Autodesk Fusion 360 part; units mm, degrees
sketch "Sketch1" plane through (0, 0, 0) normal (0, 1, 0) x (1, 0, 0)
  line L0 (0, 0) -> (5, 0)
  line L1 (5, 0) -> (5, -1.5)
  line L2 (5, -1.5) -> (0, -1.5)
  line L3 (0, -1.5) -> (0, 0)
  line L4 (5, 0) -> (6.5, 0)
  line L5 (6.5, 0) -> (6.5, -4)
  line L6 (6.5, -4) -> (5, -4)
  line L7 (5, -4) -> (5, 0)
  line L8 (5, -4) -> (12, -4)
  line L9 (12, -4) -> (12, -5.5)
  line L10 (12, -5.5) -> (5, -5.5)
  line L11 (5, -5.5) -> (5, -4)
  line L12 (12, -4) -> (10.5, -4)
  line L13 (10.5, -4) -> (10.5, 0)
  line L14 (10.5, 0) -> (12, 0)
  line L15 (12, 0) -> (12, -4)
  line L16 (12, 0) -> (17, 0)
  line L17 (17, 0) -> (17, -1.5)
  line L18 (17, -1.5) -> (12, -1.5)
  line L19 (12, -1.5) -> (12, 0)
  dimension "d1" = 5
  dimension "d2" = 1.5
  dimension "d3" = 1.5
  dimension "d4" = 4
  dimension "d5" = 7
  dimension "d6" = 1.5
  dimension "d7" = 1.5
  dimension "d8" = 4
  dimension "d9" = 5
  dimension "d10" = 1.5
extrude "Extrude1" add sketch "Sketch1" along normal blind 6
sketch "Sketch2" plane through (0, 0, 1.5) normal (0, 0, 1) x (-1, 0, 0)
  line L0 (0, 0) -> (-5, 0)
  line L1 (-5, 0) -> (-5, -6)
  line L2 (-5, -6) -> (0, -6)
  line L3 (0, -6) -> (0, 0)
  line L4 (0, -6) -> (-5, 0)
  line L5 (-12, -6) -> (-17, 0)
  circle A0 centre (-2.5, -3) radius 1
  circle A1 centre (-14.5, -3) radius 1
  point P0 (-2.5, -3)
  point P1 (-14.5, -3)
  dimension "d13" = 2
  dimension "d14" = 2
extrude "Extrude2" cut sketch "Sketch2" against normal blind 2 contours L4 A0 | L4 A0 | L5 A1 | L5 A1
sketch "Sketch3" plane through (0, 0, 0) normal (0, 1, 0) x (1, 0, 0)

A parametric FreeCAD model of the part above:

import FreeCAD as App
import Part
import Sketcher
Q = App.Units.Quantity

doc = App.newDocument("Part")
params = doc.addObject("Spreadsheet::Sheet", "Params")
for row, (alias, value) in enumerate([
    ("sketch1_width", "5 mm"),
    ("sketch1_width2", "7 mm"),
    ("sketch1_width3", "4 mm"),
    ("sketch1_height", "1.5 mm"),
    ("pad1_length", "6 mm"),
    ("sketch2_diameter", "2 mm"),
    ("pocket1_length", "2 mm"),
], start=1):
    params.set(f"A{row}", alias)
    params.set(f"B{row}", "=" + value)
    params.setAlias(f"B{row}", alias)

body = doc.addObject("PartDesign::Body", "Body")

sketch1 = doc.addObject("Sketcher::SketchObject", "Sketch")
body.addObject(sketch1)
sketch1.AttachmentSupport = (doc.XZ_Plane, [""])
sketch1.MapMode = "FlatFace"
sketch1.addGeometry([
    Part.LineSegment(App.Vector(0, 0, 0), App.Vector(0, 1.5, 0)),
    Part.LineSegment(App.Vector(0, 1.5, 0), App.Vector(5, 1.5, 0)),
    Part.LineSegment(App.Vector(5, 1.5, 0), App.Vector(5, 5.5, 0)),
    Part.LineSegment(App.Vector(5, 5.5, 0), App.Vector(12, 5.5, 0)),
    Part.LineSegment(App.Vector(12, 5.5, 0), App.Vector(12, 1.5, 0)),
    Part.LineSegment(App.Vector(12, 1.5, 0), App.Vector(17, 1.5, 0)),
    Part.LineSegment(App.Vector(17, 1.5, 0), App.Vector(17, 0, 0)),
    Part.LineSegment(App.Vector(17, 0, 0), App.Vector(10.5, 0, 0)),
    Part.LineSegment(App.Vector(10.5, 0, 0), App.Vector(10.5, 4, 0)),
    Part.LineSegment(App.Vector(10.5, 4, 0), App.Vector(6.5, 4, 0)),
    Part.LineSegment(App.Vector(6.5, 4, 0), App.Vector(6.5, 0, 0)),
    Part.LineSegment(App.Vector(6.5, 0, 0), App.Vector(0, 0, 0)),
], False)
sketch1.addConstraint([
    Sketcher.Constraint("Coincident", 0, 2, 1, 1),
    Sketcher.Constraint("Coincident", 1, 2, 2, 1),
    Sketcher.Constraint("Coincident", 2, 2, 3, 1),
    Sketcher.Constraint("Coincident", 3, 2, 4, 1),
    Sketcher.Constraint("Coincident", 4, 2, 5, 1),
    Sketcher.Constraint("Coincident", 5, 2, 6, 1),
    Sketcher.Constraint("Coincident", 6, 2, 7, 1),
    Sketcher.Constraint("Coincident", 7, 2, 8, 1),
    Sketcher.Constraint("Coincident", 8, 2, 9, 1),
    Sketcher.Constraint("Coincident", 9, 2, 10, 1),
    Sketcher.Constraint("Coincident", 10, 2, 11, 1),
    Sketcher.Constraint("Coincident", 11, 2, 0, 1),
    Sketcher.Constraint("Vertical", 0),
    Sketcher.Constraint("Horizontal", 1),
    Sketcher.Constraint("Vertical", 2),
    Sketcher.Constraint("Horizontal", 3),
    Sketcher.Constraint("Vertical", 4),
    Sketcher.Constraint("Horizontal", 5),
    Sketcher.Constraint("Vertical", 6),
    Sketcher.Constraint("Horizontal", 7),
    Sketcher.Constraint("Vertical", 8),
    Sketcher.Constraint("Horizontal", 9),
    Sketcher.Constraint("Vertical", 10),
    Sketcher.Constraint("Horizontal", 11),
    Sketcher.Constraint("Coincident", 11, 2, -1, 1),
    Sketcher.Constraint("PointOnObject", 6, 2, -1),
    Sketcher.Constraint("Horizontal", 1, 2, 4, 2),
    Sketcher.Constraint("Equal", 1, 5),
    Sketcher.Constraint("Equal", 7, 11),
    Sketcher.Constraint("Equal", 9, 2),
    Sketcher.Constraint("Equal", 4, 8),
    Sketcher.Constraint("DistanceX", 1, 1, 1, 2, Q("5 mm")),
    Sketcher.Constraint("DistanceX", 3, 1, 3, 2, Q("7 mm")),
    Sketcher.Constraint("DistanceX", 9, 2, 9, 1, Q("4 mm")),
    Sketcher.Constraint("DistanceY", 0, 1, 0, 2, Q("1.5 mm")),
])
sketch1.setExpression("Constraints[31]", "Params.sketch1_width")
sketch1.setExpression("Constraints[32]", "Params.sketch1_width2")
sketch1.setExpression("Constraints[33]", "Params.sketch1_width3")
sketch1.setExpression("Constraints[34]", "Params.sketch1_height")
pad1 = doc.addObject("PartDesign::Pad", "Pad")
body.addObject(pad1)
pad1.Profile = sketch1
pad1.setExpression("Length", "Params.pad1_length")
pad1.Reversed = True

sketch2 = doc.addObject("Sketcher::SketchObject", "Sketch001")
body.addObject(sketch2)
sketch2.AttachmentSupport = (doc.XY_Plane, [""])
sketch2.MapMode = "FlatFace"
sketch2.AttachmentOffset = App.Placement(App.Vector(0, 0, 1.5), App.Rotation())
sketch2.addGeometry([
    Part.Circle(App.Vector(2.5, 3, 0), App.Vector(0, 0, 1), 1),
    Part.Circle(App.Vector(14.5, 3, 0), App.Vector(0, 0, 1), 1),
], False)
sketch2.addConstraint([
    Sketcher.Constraint("Equal", 0, 1),
    Sketcher.Constraint("Horizontal", 0, 3, 1, 3),
    Sketcher.Constraint("Diameter", 0, Q("2 mm")),
    Sketcher.Constraint("DistanceY", -1, 1, 0, 3, Q("3 mm")),
    Sketcher.Constraint("DistanceX", 0, 3, 1, 3, Q("12 mm")),
    Sketcher.Constraint("DistanceX", -1, 1, 0, 3, Q("2.5 mm")),
])
sketch2.setExpression("Constraints[2]", "Params.sketch2_diameter")
pocket1 = doc.addObject("PartDesign::Pocket", "Pocket")
body.addObject(pocket1)
pocket1.Profile = sketch2
pocket1.setExpression("Length", "Params.pocket1_length")

doc.recompute()
